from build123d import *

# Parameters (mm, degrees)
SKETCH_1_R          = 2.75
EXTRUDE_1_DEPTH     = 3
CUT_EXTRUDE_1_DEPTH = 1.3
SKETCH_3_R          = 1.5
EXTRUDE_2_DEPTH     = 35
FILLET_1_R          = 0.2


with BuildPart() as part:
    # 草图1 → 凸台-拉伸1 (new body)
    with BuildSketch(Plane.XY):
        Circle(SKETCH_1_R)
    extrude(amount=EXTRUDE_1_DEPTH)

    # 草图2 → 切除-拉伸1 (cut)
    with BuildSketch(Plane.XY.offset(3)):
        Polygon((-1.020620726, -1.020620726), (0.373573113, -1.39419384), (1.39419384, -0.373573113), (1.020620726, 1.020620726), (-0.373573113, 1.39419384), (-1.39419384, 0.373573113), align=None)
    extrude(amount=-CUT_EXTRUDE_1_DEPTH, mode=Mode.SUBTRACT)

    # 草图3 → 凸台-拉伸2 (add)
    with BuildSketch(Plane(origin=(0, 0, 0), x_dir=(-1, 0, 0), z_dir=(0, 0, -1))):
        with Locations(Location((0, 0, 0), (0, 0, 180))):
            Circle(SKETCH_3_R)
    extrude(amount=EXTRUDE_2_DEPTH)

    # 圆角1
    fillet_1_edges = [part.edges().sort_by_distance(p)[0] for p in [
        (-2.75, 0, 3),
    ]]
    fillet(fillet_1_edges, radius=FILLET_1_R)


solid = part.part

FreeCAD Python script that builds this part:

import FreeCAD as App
import Part
import Sketcher
from FreeCAD import Vector
Q = App.Units.Quantity


def edges_at(feature, points):
    """Names of the edges that pass closest to the given points."""
    edges = feature.Shape.Edges
    near = lambda p: min(range(len(edges)), key=lambda i: edges[i].distToShape(Part.Vertex(*p))[0])
    return sorted({f"Edge{near(p) + 1}" for p in points})


def add_polygon(sketch, points):
    """Adds a closed chain of lines whose ends are joined by coincident constraints."""
    first, n = sketch.GeometryCount, len(points)
    for a, b in zip(points, points[1:] + points[:1]):
        sketch.addGeometry(Part.LineSegment(App.Vector(*a, 0), App.Vector(*b, 0)), False)
    for i in range(n):
        sketch.addConstraint(Sketcher.Constraint("Coincident", first + i, 2, first + (i + 1) % n, 1))

doc = App.newDocument("Part")
body = doc.addObject("PartDesign::Body", "Body")

# Sketch on XY plane
sketch1 = doc.addObject("Sketcher::SketchObject", "Sketch")
body.addObject(sketch1)
sketch1.AttachmentSupport = (doc.XY_Plane, [""])
sketch1.MapMode = "FlatFace"
sketch1.addGeometry(Part.Circle(Vector(0, 0, 0), Vector(0, 0, 1), 2.8), False)
sketch1.addConstraint(Sketcher.Constraint("Coincident", 0, 3, -1, 1))
sketch1.addConstraint(Sketcher.Constraint("Diameter", 0, 5.5))
pad1 = doc.addObject("PartDesign::Pad", "Pad")
body.addObject(pad1)
pad1.Profile = sketch1
pad1.Length = 3

# Sketch on XY plane
sketch2 = doc.addObject("Sketcher::SketchObject", "Sketch001")
body.addObject(sketch2)
sketch2.AttachmentSupport = (doc.XY_Plane, [""])
sketch2.MapMode = "FlatFace"
sketch2.AttachmentOffset = App.Placement(Vector(0, 0, 3), App.Rotation())
add_polygon(sketch2, [(-1, -1), (0.4, -1.4), (1.4, -0.4), (1, 1), (-0.4, 1.4), (-1.4, 0.4)])  # lines 0-5
sketch2.addConstraint(Sketcher.Constraint("Symmetric", 0, 2, 3, 2, -1, 1))
sketch2.addConstraint(Sketcher.Constraint("Symmetric", 1, 2, 4, 2, -1, 1))
sketch2.addConstraint(Sketcher.Constraint("Symmetric", 2, 2, 5, 2, -1, 1))
sketch2.addConstraint(Sketcher.Constraint("Equal", 0, 1))
sketch2.addConstraint(Sketcher.Constraint("Equal", 1, 2))
sketch2.addConstraint(Sketcher.Constraint("Angle", 0, Q("-15 deg")))
sketch2.addConstraint(Sketcher.Constraint("Angle", 1, Q("45 deg")))
sketch2.addConstraint(Sketcher.Constraint("Angle", 2, Q("105 deg")))
sketch2.addConstraint(Sketcher.Constraint("DistanceX", -1, 1, 2, 2, 1.020621))
pocket1 = doc.addObject("PartDesign::Pocket", "Pocket")
body.addObject(pocket1)
pocket1.Profile = sketch2
pocket1.Length = 1.3

# Sketch on XY plane
sketch3 = doc.addObject("Sketcher::SketchObject", "Sketch002")
body.addObject(sketch3)
sketch3.AttachmentSupport = (doc.XY_Plane, [""])
sketch3.MapMode = "FlatFace"
sketch3.addGeometry(Part.Circle(Vector(0, 0, 0), Vector(0, 0, 1), 1.5), False)
sketch3.addConstraint(Sketcher.Constraint("Coincident", 0, 3, -1, 1))
sketch3.addConstraint(Sketcher.Constraint("Diameter", 0, 3.0))
pad2 = doc.addObject("PartDesign::Pad", "Pad001")
body.addObject(pad2)
pad2.Profile = sketch3
pad2.Length = 35
pad2.Reversed = True
doc.recompute()

fillet = doc.addObject("PartDesign::Fillet", "Fillet")
body.addObject(fillet)
fillet.Base = (pad2, edges_at(pad2, [(-2.75, 0, 3)]))
fillet.Radius = 0.2

doc.recompute()
